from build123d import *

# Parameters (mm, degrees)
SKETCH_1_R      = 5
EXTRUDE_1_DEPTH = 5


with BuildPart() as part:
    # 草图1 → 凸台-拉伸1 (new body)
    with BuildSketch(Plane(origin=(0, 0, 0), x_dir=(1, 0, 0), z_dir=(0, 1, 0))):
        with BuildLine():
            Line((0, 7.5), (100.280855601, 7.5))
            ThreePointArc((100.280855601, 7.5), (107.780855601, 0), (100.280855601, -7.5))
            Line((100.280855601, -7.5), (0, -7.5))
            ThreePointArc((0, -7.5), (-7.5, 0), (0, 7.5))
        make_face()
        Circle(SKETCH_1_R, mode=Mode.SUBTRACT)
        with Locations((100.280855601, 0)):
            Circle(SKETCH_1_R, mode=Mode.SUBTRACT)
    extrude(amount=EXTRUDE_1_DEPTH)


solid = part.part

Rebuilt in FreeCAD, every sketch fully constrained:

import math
import FreeCAD as App
import Part
import Sketcher
from FreeCAD import Vector

doc = App.newDocument("Part")
params = doc.addObject("Spreadsheet::Sheet", "Params")
for row, (alias, value) in enumerate([
    ("sketch1_diameter", "10 mm"),
    ("sketch1_radius", "7.5 mm"),
    ("pad1_length", "5 mm"),
], start=1):
    params.set(f"A{row}", alias)
    params.set(f"B{row}", "=" + value)
    params.setAlias(f"B{row}", alias)

body = doc.addObject("PartDesign::Body", "Body")

# Sketch on XZ plane
sketch1 = body.newObject("Sketcher::SketchObject", "Sketch")
sketch1.AttachmentSupport = (doc.getObject("XZ_Plane"), [""])
sketch1.MapMode = "FlatFace"
sketch1.addGeometry(Part.LineSegment(Vector(100.280856, -7.5, 0), Vector(0, -7.5, 0)), False)
sketch1.addGeometry(Part.ArcOfCircle(Part.Circle(Vector(0, 0, 0), Vector(0, 0, 1), 7.5), math.radians(90), math.radians(270)), False)
sketch1.addGeometry(Part.LineSegment(Vector(0, 7.5, 0), Vector(100.280856, 7.5, 0)), False)
sketch1.addGeometry(Part.ArcOfCircle(Part.Circle(Vector(100.280856, 0, 0), Vector(0, 0, 1), 7.5), math.radians(-90), math.radians(90)), False)
sketch1.addGeometry(Part.Circle(Vector(100.280856, 0, 0), Vector(0, 0, 1), 5), False)
sketch1.addGeometry(Part.Circle(Vector(0, 0, 0), Vector(0, 0, 1), 5), False)
sketch1.addConstraint(Sketcher.Constraint("Tangent", 0, 2, 1, 2))
sketch1.addConstraint(Sketcher.Constraint("Tangent", 1, 1, 2, 1))
sketch1.addConstraint(Sketcher.Constraint("Tangent", 2, 2, 3, 2))
sketch1.addConstraint(Sketcher.Constraint("Tangent", 3, 1, 0, 1))
sketch1.addConstraint(Sketcher.Constraint("Horizontal", 0))
sketch1.addConstraint(Sketcher.Constraint("Horizontal", 2))
sketch1.addConstraint(Sketcher.Constraint("Coincident", 1, 3, -1, 1))
sketch1.addConstraint(Sketcher.Constraint("Coincident", 5, 3, -1, 1))
sketch1.addConstraint(Sketcher.Constraint("Coincident", 4, 3, 3, 3))
sketch1.addConstraint(Sketcher.Constraint("Equal", 4, 5))
sketch1.addConstraint(Sketcher.Constraint("Diameter", 4, 10.0))
sketch1.addConstraint(Sketcher.Constraint("Radius", 1, 7.5))
sketch1.addConstraint(Sketcher.Constraint("DistanceX", 0, 2, 0, 1, 100.280856))
sketch1.setExpression("Constraints[10]", "Params.sketch1_diameter")
sketch1.setExpression("Constraints[11]", "Params.sketch1_radius")
pad1 = body.newObject("PartDesign::Pad", "Pad")
pad1.Profile = sketch1
pad1.setExpression("Length", "Params.pad1_length")
pad1.Reversed = True

doc.recompute()
